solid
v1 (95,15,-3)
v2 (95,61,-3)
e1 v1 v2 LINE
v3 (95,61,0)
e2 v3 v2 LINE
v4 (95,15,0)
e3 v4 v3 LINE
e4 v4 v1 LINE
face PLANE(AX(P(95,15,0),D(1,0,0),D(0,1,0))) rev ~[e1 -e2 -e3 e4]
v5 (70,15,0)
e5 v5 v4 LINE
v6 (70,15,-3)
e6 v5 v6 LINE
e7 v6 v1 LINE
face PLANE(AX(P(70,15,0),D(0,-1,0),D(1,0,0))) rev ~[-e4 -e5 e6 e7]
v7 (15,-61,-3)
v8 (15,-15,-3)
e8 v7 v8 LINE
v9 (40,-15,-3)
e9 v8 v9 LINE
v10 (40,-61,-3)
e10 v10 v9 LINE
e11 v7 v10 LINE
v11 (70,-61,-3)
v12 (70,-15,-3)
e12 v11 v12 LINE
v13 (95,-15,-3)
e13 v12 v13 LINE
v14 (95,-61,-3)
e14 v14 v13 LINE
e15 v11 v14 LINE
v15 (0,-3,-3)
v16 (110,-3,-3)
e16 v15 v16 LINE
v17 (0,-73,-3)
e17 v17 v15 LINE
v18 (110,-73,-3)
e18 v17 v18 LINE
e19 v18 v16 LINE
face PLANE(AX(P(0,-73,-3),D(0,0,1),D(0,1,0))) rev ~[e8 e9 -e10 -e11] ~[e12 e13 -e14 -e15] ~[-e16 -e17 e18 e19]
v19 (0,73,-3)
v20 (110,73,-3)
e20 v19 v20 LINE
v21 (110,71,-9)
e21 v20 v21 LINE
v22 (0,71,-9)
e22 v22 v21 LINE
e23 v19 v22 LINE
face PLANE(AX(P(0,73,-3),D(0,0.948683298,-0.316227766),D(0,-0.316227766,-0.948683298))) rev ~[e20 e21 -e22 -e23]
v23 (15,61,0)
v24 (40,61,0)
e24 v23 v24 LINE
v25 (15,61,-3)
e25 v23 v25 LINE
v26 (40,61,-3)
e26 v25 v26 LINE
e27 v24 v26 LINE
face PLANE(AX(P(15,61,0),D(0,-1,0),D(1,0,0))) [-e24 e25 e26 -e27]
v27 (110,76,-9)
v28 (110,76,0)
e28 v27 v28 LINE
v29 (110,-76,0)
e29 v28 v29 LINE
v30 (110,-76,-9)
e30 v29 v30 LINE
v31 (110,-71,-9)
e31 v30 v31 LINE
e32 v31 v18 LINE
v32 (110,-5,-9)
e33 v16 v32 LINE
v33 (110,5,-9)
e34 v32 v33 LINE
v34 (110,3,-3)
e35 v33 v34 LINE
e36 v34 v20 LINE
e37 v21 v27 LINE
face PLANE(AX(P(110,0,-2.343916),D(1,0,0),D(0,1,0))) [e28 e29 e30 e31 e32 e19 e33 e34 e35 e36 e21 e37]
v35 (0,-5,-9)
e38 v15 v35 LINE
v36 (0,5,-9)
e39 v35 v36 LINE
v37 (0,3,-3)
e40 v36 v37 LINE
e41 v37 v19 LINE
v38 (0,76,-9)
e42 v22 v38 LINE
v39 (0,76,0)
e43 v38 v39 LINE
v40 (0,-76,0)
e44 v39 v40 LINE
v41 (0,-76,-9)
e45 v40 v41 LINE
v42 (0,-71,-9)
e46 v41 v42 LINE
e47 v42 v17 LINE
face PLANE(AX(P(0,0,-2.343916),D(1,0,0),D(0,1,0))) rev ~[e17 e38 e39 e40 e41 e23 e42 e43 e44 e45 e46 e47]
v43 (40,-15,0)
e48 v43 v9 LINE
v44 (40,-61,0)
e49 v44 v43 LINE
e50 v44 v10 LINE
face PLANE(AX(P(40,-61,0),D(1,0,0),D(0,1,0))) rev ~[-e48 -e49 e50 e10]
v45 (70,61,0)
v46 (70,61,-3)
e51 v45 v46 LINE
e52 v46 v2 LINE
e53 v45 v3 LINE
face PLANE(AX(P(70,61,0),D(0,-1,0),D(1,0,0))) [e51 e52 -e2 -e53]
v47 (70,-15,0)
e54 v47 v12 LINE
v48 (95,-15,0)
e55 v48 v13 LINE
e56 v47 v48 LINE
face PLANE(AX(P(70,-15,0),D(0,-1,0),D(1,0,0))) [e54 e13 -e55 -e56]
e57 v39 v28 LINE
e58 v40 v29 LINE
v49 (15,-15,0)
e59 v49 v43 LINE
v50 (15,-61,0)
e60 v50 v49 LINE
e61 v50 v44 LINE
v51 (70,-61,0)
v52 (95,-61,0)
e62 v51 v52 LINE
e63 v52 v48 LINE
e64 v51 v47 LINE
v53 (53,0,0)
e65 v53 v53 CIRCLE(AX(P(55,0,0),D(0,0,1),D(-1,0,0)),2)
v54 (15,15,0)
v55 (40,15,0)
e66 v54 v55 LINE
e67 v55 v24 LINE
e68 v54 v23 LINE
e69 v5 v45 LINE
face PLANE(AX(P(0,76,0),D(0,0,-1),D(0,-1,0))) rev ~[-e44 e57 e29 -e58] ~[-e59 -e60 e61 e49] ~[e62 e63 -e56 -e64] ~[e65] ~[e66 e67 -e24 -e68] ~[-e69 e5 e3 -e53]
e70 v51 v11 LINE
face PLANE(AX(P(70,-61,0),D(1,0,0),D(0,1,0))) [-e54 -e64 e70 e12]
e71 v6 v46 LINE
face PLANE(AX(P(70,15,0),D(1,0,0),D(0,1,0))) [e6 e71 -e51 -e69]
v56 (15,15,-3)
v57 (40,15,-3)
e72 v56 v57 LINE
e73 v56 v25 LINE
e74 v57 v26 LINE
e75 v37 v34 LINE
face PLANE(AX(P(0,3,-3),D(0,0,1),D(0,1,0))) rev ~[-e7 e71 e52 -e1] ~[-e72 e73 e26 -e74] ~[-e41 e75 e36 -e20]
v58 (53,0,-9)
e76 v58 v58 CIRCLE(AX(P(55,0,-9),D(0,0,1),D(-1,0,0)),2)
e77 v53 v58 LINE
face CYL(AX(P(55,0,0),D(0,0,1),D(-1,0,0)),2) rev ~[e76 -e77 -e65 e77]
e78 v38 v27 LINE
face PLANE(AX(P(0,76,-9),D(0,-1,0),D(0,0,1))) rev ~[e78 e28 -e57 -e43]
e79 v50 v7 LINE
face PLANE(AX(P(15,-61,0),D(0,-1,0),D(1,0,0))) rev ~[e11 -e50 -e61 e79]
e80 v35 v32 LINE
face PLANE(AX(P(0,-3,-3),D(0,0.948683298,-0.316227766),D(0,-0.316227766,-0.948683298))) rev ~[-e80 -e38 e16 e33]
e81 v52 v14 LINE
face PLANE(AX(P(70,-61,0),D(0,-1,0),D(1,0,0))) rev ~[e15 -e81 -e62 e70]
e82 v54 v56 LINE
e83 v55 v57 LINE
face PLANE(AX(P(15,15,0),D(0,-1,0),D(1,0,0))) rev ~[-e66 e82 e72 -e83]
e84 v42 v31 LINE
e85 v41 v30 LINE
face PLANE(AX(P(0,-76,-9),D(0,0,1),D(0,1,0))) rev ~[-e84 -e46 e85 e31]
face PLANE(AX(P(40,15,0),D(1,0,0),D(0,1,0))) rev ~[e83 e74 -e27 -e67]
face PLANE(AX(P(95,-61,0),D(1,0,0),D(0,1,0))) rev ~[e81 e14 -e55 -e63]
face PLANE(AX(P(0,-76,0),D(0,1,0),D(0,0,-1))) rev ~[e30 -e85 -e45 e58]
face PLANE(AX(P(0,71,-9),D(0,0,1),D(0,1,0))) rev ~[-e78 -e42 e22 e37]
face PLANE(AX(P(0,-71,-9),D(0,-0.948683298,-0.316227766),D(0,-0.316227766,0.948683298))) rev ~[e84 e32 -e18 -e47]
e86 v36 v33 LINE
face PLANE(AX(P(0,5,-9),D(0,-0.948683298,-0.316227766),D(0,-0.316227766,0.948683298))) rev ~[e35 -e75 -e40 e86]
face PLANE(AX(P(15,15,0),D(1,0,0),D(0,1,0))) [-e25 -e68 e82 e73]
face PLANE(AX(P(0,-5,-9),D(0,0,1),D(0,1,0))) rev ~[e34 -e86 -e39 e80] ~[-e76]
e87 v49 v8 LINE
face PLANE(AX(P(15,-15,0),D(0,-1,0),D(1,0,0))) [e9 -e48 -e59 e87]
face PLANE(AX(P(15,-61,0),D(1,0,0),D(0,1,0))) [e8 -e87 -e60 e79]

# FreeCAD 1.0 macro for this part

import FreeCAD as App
import Part
import Sketcher

V = App.Vector
Q = App.Units.Quantity


def add_polygon(sketch, points):
    """Adds a closed chain of lines whose ends are joined by coincident constraints."""
    first, n = sketch.GeometryCount, len(points)
    for a, b in zip(points, points[1:] + points[:1]):
        sketch.addGeometry(Part.LineSegment(App.Vector(*a, 0), App.Vector(*b, 0)), False)
    for i in range(n):
        sketch.addConstraint(Sketcher.Constraint("Coincident", first + i, 2, first + (i + 1) % n, 1))

doc = App.newDocument("Part")
body = doc.addObject("PartDesign::Body", "Body")

# Sketch on YZ plane
sketch1 = body.newObject("Sketcher::SketchObject", "Sketch")
sketch1.AttachmentSupport = (doc.getObject("YZ_Plane"), [""])
sketch1.MapMode = "FlatFace"
add_polygon(sketch1, [(-5, -9), (5, -9), (3, -3), (73, -3), (71, -9), (76, -9), (76, 0), (-76, 0), (-76, -9), (-71, -9), (-73, -3), (-3, -3)])  # lines 0-11
sketch1.addConstraint([
    Sketcher.Constraint("Horizontal", 0),
    Sketcher.Constraint("Horizontal", 2),
    Sketcher.Constraint("Horizontal", 4),
    Sketcher.Constraint("Vertical", 5),
    Sketcher.Constraint("Horizontal", 6),
    Sketcher.Constraint("Vertical", 7),
    Sketcher.Constraint("Horizontal", 8),
    Sketcher.Constraint("Horizontal", 10),
    Sketcher.Constraint("Symmetric", 5, 2, 6, 2, -1, 1),
    Sketcher.Constraint("Symmetric", 3, 2, 8, 2, -2),
    Sketcher.Constraint("Symmetric", 2, 2, 9, 2, -2),
    Sketcher.Constraint("Parallel", 1, 9),
    Sketcher.Constraint("Parallel", 3, 11),
    Sketcher.Constraint("Horizontal", 0, 2, 3, 2),
    Sketcher.Constraint("Equal", 2, 10),
    Sketcher.Constraint("DistanceX", 0, 1, 0, 2, Q("10 mm")),
    Sketcher.Constraint("DistanceX", 2, 1, 2, 2, Q("70 mm")),
    Sketcher.Constraint("DistanceX", 4, 1, 4, 2, Q("5 mm")),
    Sketcher.Constraint("DistanceX", 6, 2, 6, 1, Q("152 mm")),
    Sketcher.Constraint("DistanceY", 5, 1, 5, 2, Q("9 mm")),
    Sketcher.Constraint("DistanceY", 1, 2, -1, 1, Q("3 mm")),
])
pad1 = body.newObject("PartDesign::Pad", "Pad")
pad1.Profile = sketch1
pad1.Length = 110

# Sketch on XY plane
sketch2 = body.newObject("Sketcher::SketchObject", "Sketch001")
sketch2.AttachmentSupport = (doc.getObject("XY_Plane"), [""])
sketch2.MapMode = "FlatFace"
add_polygon(sketch2, [(15, -15), (15, -61), (40, -61), (40, -15)])  # lines 0-3
add_polygon(sketch2, [(70, -15), (70, -61), (95, -61), (95, -15)])  # lines 4-7
add_polygon(sketch2, [(70, 61), (70, 15), (95, 15), (95, 61)])  # lines 8-11
add_polygon(sketch2, [(15, 61), (15, 15), (40, 15), (40, 61)])  # lines 12-15
sketch2.addGeometry(Part.Circle(V(55, 0, 0), V(0, 0, 1), 2), False)  # 16
sketch2.addConstraint([
    Sketcher.Constraint("Vertical", 0),
    Sketcher.Constraint("Horizontal", 1),
    Sketcher.Constraint("Vertical", 2),
    Sketcher.Constraint("Horizontal", 3),
    Sketcher.Constraint("Vertical", 4),
    Sketcher.Constraint("Horizontal", 5),
    Sketcher.Constraint("Vertical", 6),
    Sketcher.Constraint("Horizontal", 7),
    Sketcher.Constraint("Vertical", 8),
    Sketcher.Constraint("Horizontal", 9),
    Sketcher.Constraint("Vertical", 10),
    Sketcher.Constraint("Horizontal", 11),
    Sketcher.Constraint("Vertical", 12),
    Sketcher.Constraint("Horizontal", 13),
    Sketcher.Constraint("Vertical", 14),
    Sketcher.Constraint("Horizontal", 15),
    Sketcher.Constraint("Symmetric", 7, 2, 8, 2, -1),
    Sketcher.Constraint("Symmetric", 5, 2, 10, 2, -1),
    Sketcher.Constraint("Symmetric", 3, 2, 12, 2, -1),
    Sketcher.Constraint("Symmetric", 1, 2, 14, 2, -1),
    Sketcher.Constraint("PointOnObject", 16, 3, -1),
    Sketcher.Constraint("Horizontal", 1, 2, 4, 2),
    Sketcher.Constraint("Horizontal", 3, 2, 6, 2),
    Sketcher.Constraint("Equal", 3, 5),
    Sketcher.Constraint("Diameter", 16, Q("4 mm")),
    Sketcher.Constraint("DistanceX", 1, 1, 1, 2, Q("25 mm")),
    Sketcher.Constraint("DistanceY", 0, 2, 0, 1, Q("46 mm")),
    Sketcher.Constraint("DistanceX", -1, 1, 16, 3, Q("55 mm")),
    Sketcher.Constraint("DistanceX", -1, 1, 0, 2, Q("15 mm")),
    Sketcher.Constraint("DistanceY", 0, 2, -1, 1, Q("61 mm")),
    Sketcher.Constraint("DistanceX", -1, 1, 4, 2, Q("70 mm")),
])
pocket1 = body.newObject("PartDesign::Pocket", "Pocket")
pocket1.Profile = sketch2
pocket1.Length = 25

doc.recompute()
